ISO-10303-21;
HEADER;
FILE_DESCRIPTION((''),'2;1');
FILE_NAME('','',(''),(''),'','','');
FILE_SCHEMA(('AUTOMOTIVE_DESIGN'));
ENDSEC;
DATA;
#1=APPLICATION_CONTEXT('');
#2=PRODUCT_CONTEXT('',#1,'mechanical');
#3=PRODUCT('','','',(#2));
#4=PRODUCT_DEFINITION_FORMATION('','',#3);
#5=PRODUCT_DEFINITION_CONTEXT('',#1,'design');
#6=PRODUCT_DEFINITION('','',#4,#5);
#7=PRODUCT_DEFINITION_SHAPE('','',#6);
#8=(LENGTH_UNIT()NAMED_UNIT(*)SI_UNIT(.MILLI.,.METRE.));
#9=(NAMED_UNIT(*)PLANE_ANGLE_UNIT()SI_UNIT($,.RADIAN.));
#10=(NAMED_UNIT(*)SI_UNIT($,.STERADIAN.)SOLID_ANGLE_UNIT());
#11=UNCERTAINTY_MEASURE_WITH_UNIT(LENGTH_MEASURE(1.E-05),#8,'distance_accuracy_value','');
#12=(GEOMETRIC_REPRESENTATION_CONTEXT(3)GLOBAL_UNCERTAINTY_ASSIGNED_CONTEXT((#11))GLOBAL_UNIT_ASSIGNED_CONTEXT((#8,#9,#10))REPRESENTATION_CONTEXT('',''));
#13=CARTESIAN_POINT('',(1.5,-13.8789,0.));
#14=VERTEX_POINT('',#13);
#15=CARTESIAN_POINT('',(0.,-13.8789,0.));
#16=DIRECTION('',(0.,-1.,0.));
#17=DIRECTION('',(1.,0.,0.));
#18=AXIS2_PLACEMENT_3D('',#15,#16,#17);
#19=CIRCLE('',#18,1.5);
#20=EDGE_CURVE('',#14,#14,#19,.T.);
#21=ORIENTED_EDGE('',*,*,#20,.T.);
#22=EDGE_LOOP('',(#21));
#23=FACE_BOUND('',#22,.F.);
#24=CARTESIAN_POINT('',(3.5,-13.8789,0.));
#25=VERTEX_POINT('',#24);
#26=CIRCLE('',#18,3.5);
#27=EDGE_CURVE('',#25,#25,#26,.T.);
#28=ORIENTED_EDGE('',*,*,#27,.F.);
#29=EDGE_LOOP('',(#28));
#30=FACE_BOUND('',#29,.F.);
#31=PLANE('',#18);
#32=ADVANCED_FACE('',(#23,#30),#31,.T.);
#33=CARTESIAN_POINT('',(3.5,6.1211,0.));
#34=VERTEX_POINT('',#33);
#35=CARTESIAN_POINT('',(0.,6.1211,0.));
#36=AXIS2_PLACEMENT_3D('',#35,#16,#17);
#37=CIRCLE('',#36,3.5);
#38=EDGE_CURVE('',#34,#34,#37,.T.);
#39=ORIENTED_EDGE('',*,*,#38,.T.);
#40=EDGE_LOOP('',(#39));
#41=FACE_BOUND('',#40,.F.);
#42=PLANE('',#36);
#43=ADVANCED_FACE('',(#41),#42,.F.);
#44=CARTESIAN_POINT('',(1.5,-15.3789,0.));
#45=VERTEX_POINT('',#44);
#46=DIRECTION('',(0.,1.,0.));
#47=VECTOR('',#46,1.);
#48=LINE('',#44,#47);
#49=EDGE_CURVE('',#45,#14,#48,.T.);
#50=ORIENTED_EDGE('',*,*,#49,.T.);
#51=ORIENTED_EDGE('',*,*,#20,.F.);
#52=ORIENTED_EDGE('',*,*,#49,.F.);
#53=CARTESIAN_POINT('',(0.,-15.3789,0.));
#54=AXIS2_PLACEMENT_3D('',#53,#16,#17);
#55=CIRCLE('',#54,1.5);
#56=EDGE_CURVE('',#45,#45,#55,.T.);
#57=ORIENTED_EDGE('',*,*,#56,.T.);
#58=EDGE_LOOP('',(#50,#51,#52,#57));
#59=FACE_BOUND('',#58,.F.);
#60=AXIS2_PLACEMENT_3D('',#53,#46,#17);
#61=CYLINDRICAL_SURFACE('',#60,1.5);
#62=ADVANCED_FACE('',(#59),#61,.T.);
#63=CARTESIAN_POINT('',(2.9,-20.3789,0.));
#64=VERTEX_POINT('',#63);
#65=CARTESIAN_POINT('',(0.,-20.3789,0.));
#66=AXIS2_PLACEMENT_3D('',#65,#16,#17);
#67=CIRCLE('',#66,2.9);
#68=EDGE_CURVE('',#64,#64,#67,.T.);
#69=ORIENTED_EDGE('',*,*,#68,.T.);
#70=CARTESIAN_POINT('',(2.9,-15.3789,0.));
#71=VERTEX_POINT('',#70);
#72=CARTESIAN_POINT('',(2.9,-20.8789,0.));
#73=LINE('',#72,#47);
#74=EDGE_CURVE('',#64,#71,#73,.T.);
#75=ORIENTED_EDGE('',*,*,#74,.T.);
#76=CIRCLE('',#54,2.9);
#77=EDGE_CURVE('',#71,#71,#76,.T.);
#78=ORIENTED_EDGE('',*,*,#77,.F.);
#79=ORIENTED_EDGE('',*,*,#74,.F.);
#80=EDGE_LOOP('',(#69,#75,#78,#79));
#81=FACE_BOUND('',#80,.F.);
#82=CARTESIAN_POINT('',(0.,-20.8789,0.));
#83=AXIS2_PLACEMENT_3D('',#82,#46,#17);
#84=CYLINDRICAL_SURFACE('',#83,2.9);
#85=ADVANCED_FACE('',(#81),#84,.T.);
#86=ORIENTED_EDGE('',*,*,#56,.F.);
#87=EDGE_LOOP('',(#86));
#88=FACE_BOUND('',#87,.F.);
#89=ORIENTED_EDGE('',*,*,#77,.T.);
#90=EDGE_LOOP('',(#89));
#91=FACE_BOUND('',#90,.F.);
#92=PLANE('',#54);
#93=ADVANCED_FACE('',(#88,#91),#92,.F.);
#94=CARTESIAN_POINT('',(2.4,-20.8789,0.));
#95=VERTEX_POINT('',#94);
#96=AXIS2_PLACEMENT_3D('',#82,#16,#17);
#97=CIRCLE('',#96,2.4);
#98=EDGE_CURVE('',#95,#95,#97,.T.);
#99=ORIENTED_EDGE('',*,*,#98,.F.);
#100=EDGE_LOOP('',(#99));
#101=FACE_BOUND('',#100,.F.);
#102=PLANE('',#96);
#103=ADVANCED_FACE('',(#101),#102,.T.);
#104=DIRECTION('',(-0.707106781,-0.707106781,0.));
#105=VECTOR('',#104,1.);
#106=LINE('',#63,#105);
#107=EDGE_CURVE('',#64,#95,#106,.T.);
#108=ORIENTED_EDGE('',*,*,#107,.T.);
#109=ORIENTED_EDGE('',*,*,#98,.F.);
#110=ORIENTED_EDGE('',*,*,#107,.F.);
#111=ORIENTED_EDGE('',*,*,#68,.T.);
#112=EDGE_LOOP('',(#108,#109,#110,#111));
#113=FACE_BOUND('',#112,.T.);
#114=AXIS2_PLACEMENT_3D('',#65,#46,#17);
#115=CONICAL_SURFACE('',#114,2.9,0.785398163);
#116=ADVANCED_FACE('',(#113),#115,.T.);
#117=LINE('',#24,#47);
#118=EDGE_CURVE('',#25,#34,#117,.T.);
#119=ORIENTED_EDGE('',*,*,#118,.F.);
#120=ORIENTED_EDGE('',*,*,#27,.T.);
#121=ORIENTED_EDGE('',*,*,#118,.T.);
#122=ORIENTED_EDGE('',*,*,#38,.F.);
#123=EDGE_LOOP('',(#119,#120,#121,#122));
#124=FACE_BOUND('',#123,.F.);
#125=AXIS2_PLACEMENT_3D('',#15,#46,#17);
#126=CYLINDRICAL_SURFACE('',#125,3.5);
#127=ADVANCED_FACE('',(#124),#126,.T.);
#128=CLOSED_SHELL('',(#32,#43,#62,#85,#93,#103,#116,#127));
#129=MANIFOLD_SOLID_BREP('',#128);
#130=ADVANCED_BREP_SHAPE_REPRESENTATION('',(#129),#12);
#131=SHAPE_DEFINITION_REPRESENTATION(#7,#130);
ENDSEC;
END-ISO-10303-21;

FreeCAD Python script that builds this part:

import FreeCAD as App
import Part
import Sketcher

V = App.Vector
Q = App.Units.Quantity


def edges_at(feature, points):
    """Names of the edges that pass closest to the given points."""
    edges = feature.Shape.Edges
    near = lambda p: min(range(len(edges)), key=lambda i: edges[i].distToShape(Part.Vertex(*p))[0])
    return sorted({f"Edge{near(p) + 1}" for p in points})

doc = App.newDocument("Part")
body = doc.addObject("PartDesign::Body", "Body")

# Sketch on XY plane
sketch1 = doc.addObject("Sketcher::SketchObject", "Sketch")
body.addObject(sketch1)
sketch1.AttachmentSupport = (doc.XY_Plane, [""])
sketch1.MapMode = "FlatFace"
sketch1.addGeometry([
    Part.LineSegment(V(3.5, 6.1211, 0), V(0, 6.1211, 0)),  # 0
    Part.LineSegment(V(0, 6.1211, 0), V(0, -20.8789, 0)),  # 1
    Part.LineSegment(V(0, -20.8789, 0), V(2.9, -20.8789, 0)),  # 2
    Part.LineSegment(V(2.9, -20.8789, 0), V(2.9, -15.3789, 0)),  # 3
    Part.LineSegment(V(2.9, -15.3789, 0), V(1.5, -15.3789, 0)),  # 4
    Part.LineSegment(V(1.5, -15.3789, 0), V(1.5, -13.8789, 0)),  # 5
    Part.LineSegment(V(1.5, -13.8789, 0), V(3.5, -13.8789, 0)),  # 6
    Part.LineSegment(V(3.5, -13.8789, 0), V(3.5, 6.1211, 0)),  # 7
], False)
sketch1.addConstraint([
    Sketcher.Constraint("Coincident", 0, 2, 1, 1),
    Sketcher.Constraint("Coincident", 1, 2, 2, 1),
    Sketcher.Constraint("Coincident", 2, 2, 3, 1),
    Sketcher.Constraint("Coincident", 3, 2, 4, 1),
    Sketcher.Constraint("Coincident", 4, 2, 5, 1),
    Sketcher.Constraint("Coincident", 5, 2, 6, 1),
    Sketcher.Constraint("Coincident", 6, 2, 7, 1),
    Sketcher.Constraint("Coincident", 7, 2, 0, 1),
    Sketcher.Constraint("Horizontal", 0),
    Sketcher.Constraint("Vertical", 1),
    Sketcher.Constraint("Horizontal", 2),
    Sketcher.Constraint("Vertical", 3),
    Sketcher.Constraint("Horizontal", 4),
    Sketcher.Constraint("Vertical", 5),
    Sketcher.Constraint("Horizontal", 6),
    Sketcher.Constraint("Vertical", 7),
    Sketcher.Constraint("PointOnObject", 0, 2, -2),
    Sketcher.Constraint("DistanceY", 1, 2, 1, 1, Q("27 mm")),
    Sketcher.Constraint("DistanceY", 7, 1, 7, 2, Q("20 mm")),
    Sketcher.Constraint("DistanceX", 0, 2, 0, 1, Q("3.5 mm")),
    Sketcher.Constraint("DistanceX", 2, 1, 2, 2, Q("2.9 mm")),
    Sketcher.Constraint("DistanceY", 3, 1, 3, 2, Q("5.5 mm")),
    Sketcher.Constraint("DistanceX", -1, 1, 4, 2, Q("1.5 mm")),
    Sketcher.Constraint("DistanceY", -1, 1, 0, 2, Q("6.121 mm")),
])
revolution = doc.addObject("PartDesign::Revolution", "Revolution")
body.addObject(revolution)
revolution.Profile = sketch1
revolution.ReferenceAxis = (sketch1, ["V_Axis"])
revolution.Angle = 360
doc.recompute()

chamfer = doc.addObject("PartDesign::Chamfer", "Chamfer")
body.addObject(chamfer)
chamfer.Base = (revolution, edges_at(revolution, [(-2.9, -20.879, 0)]))
chamfer.Size = 0.5

doc.recompute()
